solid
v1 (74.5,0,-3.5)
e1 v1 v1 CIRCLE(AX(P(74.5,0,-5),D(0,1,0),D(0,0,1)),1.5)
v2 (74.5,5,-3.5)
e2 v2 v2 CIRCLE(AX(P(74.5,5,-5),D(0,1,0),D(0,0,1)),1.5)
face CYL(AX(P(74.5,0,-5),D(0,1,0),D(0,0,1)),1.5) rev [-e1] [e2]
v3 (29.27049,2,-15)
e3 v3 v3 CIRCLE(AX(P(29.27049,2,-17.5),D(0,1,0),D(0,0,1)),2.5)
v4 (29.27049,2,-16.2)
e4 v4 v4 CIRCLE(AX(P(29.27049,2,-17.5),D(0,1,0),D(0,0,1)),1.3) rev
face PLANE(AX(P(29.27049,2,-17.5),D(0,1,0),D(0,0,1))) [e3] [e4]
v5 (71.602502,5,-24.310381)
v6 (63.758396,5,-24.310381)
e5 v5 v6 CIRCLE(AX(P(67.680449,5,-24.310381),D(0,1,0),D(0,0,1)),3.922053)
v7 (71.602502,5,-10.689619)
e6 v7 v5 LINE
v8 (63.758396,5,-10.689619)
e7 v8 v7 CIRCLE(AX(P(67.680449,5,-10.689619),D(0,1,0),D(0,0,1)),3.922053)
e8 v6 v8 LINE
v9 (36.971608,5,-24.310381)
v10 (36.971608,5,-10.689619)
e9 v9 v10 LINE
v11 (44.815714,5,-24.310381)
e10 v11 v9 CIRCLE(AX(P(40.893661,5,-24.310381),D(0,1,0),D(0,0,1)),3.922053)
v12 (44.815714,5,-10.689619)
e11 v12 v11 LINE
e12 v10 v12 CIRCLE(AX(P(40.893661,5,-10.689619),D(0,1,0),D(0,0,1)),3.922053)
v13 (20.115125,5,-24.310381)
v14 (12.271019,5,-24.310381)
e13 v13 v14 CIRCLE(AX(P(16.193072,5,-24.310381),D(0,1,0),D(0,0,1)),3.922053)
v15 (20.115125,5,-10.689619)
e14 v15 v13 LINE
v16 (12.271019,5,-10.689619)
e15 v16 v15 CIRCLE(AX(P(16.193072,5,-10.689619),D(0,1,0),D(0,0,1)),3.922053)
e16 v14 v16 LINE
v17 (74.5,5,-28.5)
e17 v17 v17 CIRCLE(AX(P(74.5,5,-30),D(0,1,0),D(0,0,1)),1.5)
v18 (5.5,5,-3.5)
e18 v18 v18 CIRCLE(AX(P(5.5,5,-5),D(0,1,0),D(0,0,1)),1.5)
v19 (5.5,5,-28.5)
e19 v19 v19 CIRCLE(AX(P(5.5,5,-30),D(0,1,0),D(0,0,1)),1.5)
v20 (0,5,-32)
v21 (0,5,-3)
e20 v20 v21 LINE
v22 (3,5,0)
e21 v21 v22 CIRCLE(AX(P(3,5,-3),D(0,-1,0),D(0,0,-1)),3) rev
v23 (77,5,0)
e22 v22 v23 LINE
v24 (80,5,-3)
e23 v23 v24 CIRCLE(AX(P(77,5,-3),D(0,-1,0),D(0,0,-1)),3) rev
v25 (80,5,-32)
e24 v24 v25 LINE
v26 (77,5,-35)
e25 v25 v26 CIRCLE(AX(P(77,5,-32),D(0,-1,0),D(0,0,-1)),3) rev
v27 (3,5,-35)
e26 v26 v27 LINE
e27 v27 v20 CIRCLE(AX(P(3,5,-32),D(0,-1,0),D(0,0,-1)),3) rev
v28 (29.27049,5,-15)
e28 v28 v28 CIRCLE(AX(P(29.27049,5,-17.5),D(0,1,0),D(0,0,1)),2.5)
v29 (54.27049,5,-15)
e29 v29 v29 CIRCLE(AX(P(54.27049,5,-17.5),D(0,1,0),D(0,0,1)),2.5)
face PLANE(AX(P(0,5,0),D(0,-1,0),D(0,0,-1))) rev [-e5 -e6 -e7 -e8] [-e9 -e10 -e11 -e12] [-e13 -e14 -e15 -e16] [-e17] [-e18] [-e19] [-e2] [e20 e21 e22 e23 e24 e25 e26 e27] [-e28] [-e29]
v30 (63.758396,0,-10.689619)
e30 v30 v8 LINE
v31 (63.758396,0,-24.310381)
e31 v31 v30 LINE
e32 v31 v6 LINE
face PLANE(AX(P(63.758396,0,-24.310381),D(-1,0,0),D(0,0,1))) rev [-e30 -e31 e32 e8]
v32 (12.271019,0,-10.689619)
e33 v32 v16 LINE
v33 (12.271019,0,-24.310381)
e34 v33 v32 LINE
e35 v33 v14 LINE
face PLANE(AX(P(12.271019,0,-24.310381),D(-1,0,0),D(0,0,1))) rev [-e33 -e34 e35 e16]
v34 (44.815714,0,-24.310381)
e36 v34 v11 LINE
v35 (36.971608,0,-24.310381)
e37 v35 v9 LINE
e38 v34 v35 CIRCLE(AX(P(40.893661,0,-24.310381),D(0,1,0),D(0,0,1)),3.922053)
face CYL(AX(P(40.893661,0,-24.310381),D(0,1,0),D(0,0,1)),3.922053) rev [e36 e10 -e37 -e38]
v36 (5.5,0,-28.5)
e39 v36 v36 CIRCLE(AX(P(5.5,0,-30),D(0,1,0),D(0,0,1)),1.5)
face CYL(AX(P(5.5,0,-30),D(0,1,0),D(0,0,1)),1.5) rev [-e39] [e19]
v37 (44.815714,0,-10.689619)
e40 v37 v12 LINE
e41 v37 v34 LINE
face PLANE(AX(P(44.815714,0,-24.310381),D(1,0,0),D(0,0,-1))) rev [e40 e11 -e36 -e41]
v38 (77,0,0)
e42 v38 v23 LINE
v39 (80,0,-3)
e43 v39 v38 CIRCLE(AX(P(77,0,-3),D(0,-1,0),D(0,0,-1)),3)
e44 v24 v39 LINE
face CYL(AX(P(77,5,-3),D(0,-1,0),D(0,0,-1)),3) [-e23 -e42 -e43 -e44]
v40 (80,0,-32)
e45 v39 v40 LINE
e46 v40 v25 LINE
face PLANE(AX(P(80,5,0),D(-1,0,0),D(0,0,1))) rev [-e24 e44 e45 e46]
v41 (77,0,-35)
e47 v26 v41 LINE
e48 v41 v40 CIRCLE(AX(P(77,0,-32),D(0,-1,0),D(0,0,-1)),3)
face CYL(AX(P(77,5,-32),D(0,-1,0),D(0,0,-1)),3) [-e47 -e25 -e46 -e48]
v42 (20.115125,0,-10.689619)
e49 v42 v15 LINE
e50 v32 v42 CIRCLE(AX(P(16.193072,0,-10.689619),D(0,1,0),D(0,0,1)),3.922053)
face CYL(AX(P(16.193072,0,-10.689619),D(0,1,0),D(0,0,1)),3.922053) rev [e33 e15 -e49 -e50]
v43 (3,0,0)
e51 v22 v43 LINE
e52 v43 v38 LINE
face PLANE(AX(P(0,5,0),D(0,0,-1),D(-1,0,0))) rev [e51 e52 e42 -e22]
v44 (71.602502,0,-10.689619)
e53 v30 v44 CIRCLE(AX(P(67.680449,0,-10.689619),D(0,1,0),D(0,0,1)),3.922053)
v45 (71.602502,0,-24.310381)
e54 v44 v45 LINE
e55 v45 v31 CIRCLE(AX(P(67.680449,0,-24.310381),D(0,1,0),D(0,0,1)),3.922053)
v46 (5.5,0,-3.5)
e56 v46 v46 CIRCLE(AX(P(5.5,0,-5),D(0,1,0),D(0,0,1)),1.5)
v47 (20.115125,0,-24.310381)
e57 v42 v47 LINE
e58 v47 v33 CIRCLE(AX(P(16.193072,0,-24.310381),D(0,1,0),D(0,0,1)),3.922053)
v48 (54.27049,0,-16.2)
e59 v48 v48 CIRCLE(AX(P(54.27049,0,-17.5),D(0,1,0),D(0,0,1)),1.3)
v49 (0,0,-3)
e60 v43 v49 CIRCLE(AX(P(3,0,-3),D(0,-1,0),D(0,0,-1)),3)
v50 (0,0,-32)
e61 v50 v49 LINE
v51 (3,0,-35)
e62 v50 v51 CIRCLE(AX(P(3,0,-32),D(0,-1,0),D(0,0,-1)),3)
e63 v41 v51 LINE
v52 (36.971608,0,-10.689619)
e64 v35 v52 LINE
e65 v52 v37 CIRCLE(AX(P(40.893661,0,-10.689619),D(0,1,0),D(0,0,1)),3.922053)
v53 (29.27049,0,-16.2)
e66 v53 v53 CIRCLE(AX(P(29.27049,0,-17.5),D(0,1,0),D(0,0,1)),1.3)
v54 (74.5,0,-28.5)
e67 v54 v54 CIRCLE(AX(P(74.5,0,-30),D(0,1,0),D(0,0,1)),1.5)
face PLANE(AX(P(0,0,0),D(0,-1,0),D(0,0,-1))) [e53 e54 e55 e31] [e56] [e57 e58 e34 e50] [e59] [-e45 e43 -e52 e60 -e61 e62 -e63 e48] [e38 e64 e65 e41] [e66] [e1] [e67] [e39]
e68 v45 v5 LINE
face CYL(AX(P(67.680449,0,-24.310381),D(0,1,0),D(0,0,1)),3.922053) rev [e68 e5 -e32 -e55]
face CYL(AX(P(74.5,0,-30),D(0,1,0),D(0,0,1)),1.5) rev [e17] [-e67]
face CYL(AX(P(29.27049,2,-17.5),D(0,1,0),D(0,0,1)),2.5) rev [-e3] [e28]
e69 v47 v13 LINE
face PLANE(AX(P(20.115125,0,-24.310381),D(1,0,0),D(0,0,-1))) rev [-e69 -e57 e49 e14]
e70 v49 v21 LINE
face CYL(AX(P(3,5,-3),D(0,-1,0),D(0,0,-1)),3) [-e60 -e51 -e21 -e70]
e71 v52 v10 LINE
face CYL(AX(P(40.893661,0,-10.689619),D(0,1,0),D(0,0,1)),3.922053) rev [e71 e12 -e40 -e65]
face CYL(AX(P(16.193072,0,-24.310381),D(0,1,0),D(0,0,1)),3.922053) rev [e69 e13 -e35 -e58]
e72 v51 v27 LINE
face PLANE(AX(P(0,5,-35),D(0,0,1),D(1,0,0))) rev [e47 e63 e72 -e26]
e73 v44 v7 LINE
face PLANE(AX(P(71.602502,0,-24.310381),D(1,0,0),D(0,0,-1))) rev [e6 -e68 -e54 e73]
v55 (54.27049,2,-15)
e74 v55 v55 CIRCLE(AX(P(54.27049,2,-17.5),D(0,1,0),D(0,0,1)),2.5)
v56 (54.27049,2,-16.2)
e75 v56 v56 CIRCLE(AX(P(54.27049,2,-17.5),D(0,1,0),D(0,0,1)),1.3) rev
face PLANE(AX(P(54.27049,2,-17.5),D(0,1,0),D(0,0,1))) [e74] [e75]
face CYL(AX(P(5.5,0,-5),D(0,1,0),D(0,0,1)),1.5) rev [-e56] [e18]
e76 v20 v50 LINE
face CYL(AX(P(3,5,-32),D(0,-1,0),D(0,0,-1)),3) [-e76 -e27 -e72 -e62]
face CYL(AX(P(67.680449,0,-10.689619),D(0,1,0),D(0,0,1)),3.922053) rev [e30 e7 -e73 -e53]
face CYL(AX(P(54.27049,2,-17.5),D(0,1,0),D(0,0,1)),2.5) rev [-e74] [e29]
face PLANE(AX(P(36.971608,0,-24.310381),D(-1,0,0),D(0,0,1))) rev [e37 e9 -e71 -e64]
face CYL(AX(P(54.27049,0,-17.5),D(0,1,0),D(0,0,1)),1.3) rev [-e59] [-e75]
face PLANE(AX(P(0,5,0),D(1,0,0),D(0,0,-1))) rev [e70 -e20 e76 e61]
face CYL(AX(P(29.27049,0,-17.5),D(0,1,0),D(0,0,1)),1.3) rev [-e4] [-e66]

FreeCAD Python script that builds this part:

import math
import FreeCAD as App
import Part
import Sketcher
from FreeCAD import Vector


def edges_at(feature, points):
    """Names of the edges that pass closest to the given points."""
    edges = feature.Shape.Edges
    near = lambda p: min(range(len(edges)), key=lambda i: edges[i].distToShape(Part.Vertex(*p))[0])
    return sorted({f"Edge{near(p) + 1}" for p in points})

doc = App.newDocument("Part")
body = doc.addObject("PartDesign::Body", "Body")

sketch1 = body.newObject("Sketcher::SketchObject", "Sketch")
sketch1.AttachmentSupport = (doc.getObject("XZ_Plane"), [""])
sketch1.MapMode = "FlatFace"
sketch1.addGeometry([
    Part.LineSegment(Vector(0, -35, 0), Vector(0, 0, 0)),
    Part.LineSegment(Vector(0, 0, 0), Vector(80, 0, 0)),
    Part.LineSegment(Vector(80, 0, 0), Vector(80, -35, 0)),
    Part.LineSegment(Vector(80, -35, 0), Vector(0, -35, 0)),
], False)
sketch1.addConstraint([
    Sketcher.Constraint("Coincident", 0, 2, 1, 1),
    Sketcher.Constraint("Coincident", 1, 2, 2, 1),
    Sketcher.Constraint("Coincident", 2, 2, 3, 1),
    Sketcher.Constraint("Coincident", 3, 2, 0, 1),
    Sketcher.Constraint("Vertical", 0),
    Sketcher.Constraint("Horizontal", 1),
    Sketcher.Constraint("Vertical", 2),
    Sketcher.Constraint("Horizontal", 3),
    Sketcher.Constraint("Coincident", 0, 2, -1, 1),
    Sketcher.Constraint("DistanceX", 1, 1, 1, 2, 80.0),
    Sketcher.Constraint("DistanceY", 0, 1, 0, 2, 35.0),
])
pad1 = body.newObject("PartDesign::Pad", "Pad")
pad1.Profile = sketch1
pad1.Length = 5
pad1.Reversed = True

sketch2 = body.newObject("Sketcher::SketchObject", "Sketch001")
sketch2.AttachmentSupport = (doc.getObject("XZ_Plane"), [""])
sketch2.MapMode = "FlatFace"
sketch2.AttachmentOffset = App.Placement(Vector(0, 0, -5), App.Rotation())
sketch2.addGeometry([
    Part.Circle(Vector(5.5, -30, 0), Vector(0, 0, 1), 1.5),
    Part.Circle(Vector(74.5, -30, 0), Vector(0, 0, 1), 1.5),
    Part.Circle(Vector(29.3, -17.5, 0), Vector(0, 0, 1), 1.3),
    Part.Circle(Vector(54.3, -17.5, 0), Vector(0, 0, 1), 1.3),
    Part.Circle(Vector(74.5, -5, 0), Vector(0, 0, 1), 1.5),
    Part.Circle(Vector(5.5, -5, 0), Vector(0, 0, 1), 1.5),
    Part.LineSegment(Vector(71.6, -10.7, 0), Vector(71.6, -24.3, 0)),
    Part.ArcOfCircle(Part.Circle(Vector(67.7, -24.3, 0), Vector(0, 0, 1), 3.9), math.radians(180), math.radians(360)),
    Part.LineSegment(Vector(63.8, -24.3, 0), Vector(63.8, -10.7, 0)),
    Part.ArcOfCircle(Part.Circle(Vector(67.7, -10.7, 0), Vector(0, 0, 1), 3.9), math.radians(0), math.radians(180)),
    Part.LineSegment(Vector(44.8, -10.7, 0), Vector(44.8, -24.3, 0)),
    Part.ArcOfCircle(Part.Circle(Vector(40.9, -24.3, 0), Vector(0, 0, 1), 3.9), math.radians(180), math.radians(360)),
    Part.LineSegment(Vector(37, -24.3, 0), Vector(37, -10.7, 0)),
    Part.ArcOfCircle(Part.Circle(Vector(40.9, -10.7, 0), Vector(0, 0, 1), 3.9), math.radians(0), math.radians(180)),
    Part.LineSegment(Vector(20.1, -10.7, 0), Vector(20.1, -24.3, 0)),
    Part.ArcOfCircle(Part.Circle(Vector(16.2, -24.3, 0), Vector(0, 0, 1), 3.9), math.radians(180), math.radians(360)),
    Part.LineSegment(Vector(12.3, -24.3, 0), Vector(12.3, -10.7, 0)),
    Part.ArcOfCircle(Part.Circle(Vector(16.2, -10.7, 0), Vector(0, 0, 1), 3.9), math.radians(0), math.radians(180)),
], False)
sketch2.addConstraint([
    Sketcher.Constraint("Tangent", 6, 2, 7, 2),
    Sketcher.Constraint("Tangent", 7, 1, 8, 1),
    Sketcher.Constraint("Tangent", 8, 2, 9, 2),
    Sketcher.Constraint("Tangent", 9, 1, 6, 1),
    Sketcher.Constraint("Tangent", 10, 2, 11, 2),
    Sketcher.Constraint("Tangent", 11, 1, 12, 1),
    Sketcher.Constraint("Tangent", 12, 2, 13, 2),
    Sketcher.Constraint("Tangent", 13, 1, 10, 1),
    Sketcher.Constraint("Tangent", 14, 2, 15, 2),
    Sketcher.Constraint("Tangent", 15, 1, 16, 1),
    Sketcher.Constraint("Tangent", 16, 2, 17, 2),
    Sketcher.Constraint("Tangent", 17, 1, 14, 1),
    Sketcher.Constraint("Vertical", 6),
    Sketcher.Constraint("Vertical", 8),
    Sketcher.Constraint("Vertical", 10),
    Sketcher.Constraint("Vertical", 12),
    Sketcher.Constraint("Vertical", 14),
    Sketcher.Constraint("Vertical", 16),
    Sketcher.Constraint("Equal", 0, 1),
    Sketcher.Constraint("Equal", 2, 3),
    Sketcher.Constraint("Equal", 1, 4),
    Sketcher.Constraint("Equal", 4, 5),
    Sketcher.Constraint("Equal", 9, 11),
    Sketcher.Constraint("Equal", 13, 15),
    Sketcher.Constraint("Horizontal", 0, 3, 1, 3),
    Sketcher.Constraint("Horizontal", 2, 3, 3, 3),
    Sketcher.Constraint("Horizontal", 4, 3, 5, 3),
    Sketcher.Constraint("Horizontal", 7, 3, 11, 3),
    Sketcher.Constraint("Horizontal", 9, 3, 13, 3),
    Sketcher.Constraint("Horizontal", 11, 3, 15, 3),
    Sketcher.Constraint("Horizontal", 13, 3, 17, 3),
    Sketcher.Constraint("Vertical", 1, 3, 4, 3),
    Sketcher.Constraint("Vertical", 0, 3, 5, 3),
    Sketcher.Constraint("Diameter", 0, 3.0),
    Sketcher.Constraint("Diameter", 2, 2.6),
    Sketcher.Constraint("DistanceY", 0, 3, -1, 1, 30.0),
    Sketcher.Constraint("DistanceY", 4, 3, -1, 1, 5.0),
    Sketcher.Constraint("DistanceX", 0, 3, 1, 3, 69.0),
    Sketcher.Constraint("DistanceX", 2, 3, 3, 3, 25.0),
    Sketcher.Constraint("DistanceX", -1, 1, 0, 3, 5.5),
    Sketcher.Constraint("DistanceY", 2, 3, -1, 1, 17.5),
    Sketcher.Constraint("Radius", 7, 3.922053),
    Sketcher.Constraint("DistanceX", -1, 1, 6, 2, 71.602502),
    Sketcher.Constraint("DistanceY", 6, 2, 6, 1, 13.620763),
    Sketcher.Constraint("DistanceX", -1, 1, 2, 3, 29.27049),
    Sketcher.Constraint("DistanceY", 7, 3, -1, 1, 24.310381),
    Sketcher.Constraint("DistanceX", -1, 1, 11, 3, 40.893661),
    Sketcher.Constraint("DistanceX", -1, 1, 15, 1, 12.271019),
])
pocket1 = body.newObject("PartDesign::Pocket", "Pocket")
pocket1.Profile = sketch2
pocket1.Type = "ThroughAll"
pocket1.Reversed = True

sketch3 = body.newObject("Sketcher::SketchObject", "Sketch002")
sketch3.AttachmentSupport = (doc.getObject("XZ_Plane"), [""])
sketch3.MapMode = "FlatFace"
sketch3.AttachmentOffset = App.Placement(Vector(0, 0, -5), App.Rotation())
sketch3.addGeometry([
    Part.Circle(Vector(29.3, -17.5, 0), Vector(0, 0, 1), 2.5),
    Part.Circle(Vector(54.3, -17.5, 0), Vector(0, 0, 1), 2.5),
], False)
sketch3.addConstraint([
    Sketcher.Constraint("Equal", 0, 1),
    Sketcher.Constraint("Horizontal", 0, 3, 1, 3),
    Sketcher.Constraint("Diameter", 0, 5.0),
    Sketcher.Constraint("DistanceX", 0, 3, 1, 3, 25.0),
    Sketcher.Constraint("DistanceY", 0, 3, -1, 1, 17.5),
    Sketcher.Constraint("DistanceX", -1, 1, 0, 3, 29.27049),
])
pocket2 = body.newObject("PartDesign::Pocket", "Pocket001")
pocket2.Profile = sketch3
pocket2.Length = 3
pocket2.Reversed = True
doc.recompute()

fillet = body.newObject("PartDesign::Fillet", "Fillet")
fillet.Base = (pocket2, edges_at(pocket2, [
    (0, 2.5, -35),
    (80, 2.5, -35),
    (80, 2.5, 0),
    (0, 2.5, 0),
]))
fillet.Radius = 3

doc.recompute()
